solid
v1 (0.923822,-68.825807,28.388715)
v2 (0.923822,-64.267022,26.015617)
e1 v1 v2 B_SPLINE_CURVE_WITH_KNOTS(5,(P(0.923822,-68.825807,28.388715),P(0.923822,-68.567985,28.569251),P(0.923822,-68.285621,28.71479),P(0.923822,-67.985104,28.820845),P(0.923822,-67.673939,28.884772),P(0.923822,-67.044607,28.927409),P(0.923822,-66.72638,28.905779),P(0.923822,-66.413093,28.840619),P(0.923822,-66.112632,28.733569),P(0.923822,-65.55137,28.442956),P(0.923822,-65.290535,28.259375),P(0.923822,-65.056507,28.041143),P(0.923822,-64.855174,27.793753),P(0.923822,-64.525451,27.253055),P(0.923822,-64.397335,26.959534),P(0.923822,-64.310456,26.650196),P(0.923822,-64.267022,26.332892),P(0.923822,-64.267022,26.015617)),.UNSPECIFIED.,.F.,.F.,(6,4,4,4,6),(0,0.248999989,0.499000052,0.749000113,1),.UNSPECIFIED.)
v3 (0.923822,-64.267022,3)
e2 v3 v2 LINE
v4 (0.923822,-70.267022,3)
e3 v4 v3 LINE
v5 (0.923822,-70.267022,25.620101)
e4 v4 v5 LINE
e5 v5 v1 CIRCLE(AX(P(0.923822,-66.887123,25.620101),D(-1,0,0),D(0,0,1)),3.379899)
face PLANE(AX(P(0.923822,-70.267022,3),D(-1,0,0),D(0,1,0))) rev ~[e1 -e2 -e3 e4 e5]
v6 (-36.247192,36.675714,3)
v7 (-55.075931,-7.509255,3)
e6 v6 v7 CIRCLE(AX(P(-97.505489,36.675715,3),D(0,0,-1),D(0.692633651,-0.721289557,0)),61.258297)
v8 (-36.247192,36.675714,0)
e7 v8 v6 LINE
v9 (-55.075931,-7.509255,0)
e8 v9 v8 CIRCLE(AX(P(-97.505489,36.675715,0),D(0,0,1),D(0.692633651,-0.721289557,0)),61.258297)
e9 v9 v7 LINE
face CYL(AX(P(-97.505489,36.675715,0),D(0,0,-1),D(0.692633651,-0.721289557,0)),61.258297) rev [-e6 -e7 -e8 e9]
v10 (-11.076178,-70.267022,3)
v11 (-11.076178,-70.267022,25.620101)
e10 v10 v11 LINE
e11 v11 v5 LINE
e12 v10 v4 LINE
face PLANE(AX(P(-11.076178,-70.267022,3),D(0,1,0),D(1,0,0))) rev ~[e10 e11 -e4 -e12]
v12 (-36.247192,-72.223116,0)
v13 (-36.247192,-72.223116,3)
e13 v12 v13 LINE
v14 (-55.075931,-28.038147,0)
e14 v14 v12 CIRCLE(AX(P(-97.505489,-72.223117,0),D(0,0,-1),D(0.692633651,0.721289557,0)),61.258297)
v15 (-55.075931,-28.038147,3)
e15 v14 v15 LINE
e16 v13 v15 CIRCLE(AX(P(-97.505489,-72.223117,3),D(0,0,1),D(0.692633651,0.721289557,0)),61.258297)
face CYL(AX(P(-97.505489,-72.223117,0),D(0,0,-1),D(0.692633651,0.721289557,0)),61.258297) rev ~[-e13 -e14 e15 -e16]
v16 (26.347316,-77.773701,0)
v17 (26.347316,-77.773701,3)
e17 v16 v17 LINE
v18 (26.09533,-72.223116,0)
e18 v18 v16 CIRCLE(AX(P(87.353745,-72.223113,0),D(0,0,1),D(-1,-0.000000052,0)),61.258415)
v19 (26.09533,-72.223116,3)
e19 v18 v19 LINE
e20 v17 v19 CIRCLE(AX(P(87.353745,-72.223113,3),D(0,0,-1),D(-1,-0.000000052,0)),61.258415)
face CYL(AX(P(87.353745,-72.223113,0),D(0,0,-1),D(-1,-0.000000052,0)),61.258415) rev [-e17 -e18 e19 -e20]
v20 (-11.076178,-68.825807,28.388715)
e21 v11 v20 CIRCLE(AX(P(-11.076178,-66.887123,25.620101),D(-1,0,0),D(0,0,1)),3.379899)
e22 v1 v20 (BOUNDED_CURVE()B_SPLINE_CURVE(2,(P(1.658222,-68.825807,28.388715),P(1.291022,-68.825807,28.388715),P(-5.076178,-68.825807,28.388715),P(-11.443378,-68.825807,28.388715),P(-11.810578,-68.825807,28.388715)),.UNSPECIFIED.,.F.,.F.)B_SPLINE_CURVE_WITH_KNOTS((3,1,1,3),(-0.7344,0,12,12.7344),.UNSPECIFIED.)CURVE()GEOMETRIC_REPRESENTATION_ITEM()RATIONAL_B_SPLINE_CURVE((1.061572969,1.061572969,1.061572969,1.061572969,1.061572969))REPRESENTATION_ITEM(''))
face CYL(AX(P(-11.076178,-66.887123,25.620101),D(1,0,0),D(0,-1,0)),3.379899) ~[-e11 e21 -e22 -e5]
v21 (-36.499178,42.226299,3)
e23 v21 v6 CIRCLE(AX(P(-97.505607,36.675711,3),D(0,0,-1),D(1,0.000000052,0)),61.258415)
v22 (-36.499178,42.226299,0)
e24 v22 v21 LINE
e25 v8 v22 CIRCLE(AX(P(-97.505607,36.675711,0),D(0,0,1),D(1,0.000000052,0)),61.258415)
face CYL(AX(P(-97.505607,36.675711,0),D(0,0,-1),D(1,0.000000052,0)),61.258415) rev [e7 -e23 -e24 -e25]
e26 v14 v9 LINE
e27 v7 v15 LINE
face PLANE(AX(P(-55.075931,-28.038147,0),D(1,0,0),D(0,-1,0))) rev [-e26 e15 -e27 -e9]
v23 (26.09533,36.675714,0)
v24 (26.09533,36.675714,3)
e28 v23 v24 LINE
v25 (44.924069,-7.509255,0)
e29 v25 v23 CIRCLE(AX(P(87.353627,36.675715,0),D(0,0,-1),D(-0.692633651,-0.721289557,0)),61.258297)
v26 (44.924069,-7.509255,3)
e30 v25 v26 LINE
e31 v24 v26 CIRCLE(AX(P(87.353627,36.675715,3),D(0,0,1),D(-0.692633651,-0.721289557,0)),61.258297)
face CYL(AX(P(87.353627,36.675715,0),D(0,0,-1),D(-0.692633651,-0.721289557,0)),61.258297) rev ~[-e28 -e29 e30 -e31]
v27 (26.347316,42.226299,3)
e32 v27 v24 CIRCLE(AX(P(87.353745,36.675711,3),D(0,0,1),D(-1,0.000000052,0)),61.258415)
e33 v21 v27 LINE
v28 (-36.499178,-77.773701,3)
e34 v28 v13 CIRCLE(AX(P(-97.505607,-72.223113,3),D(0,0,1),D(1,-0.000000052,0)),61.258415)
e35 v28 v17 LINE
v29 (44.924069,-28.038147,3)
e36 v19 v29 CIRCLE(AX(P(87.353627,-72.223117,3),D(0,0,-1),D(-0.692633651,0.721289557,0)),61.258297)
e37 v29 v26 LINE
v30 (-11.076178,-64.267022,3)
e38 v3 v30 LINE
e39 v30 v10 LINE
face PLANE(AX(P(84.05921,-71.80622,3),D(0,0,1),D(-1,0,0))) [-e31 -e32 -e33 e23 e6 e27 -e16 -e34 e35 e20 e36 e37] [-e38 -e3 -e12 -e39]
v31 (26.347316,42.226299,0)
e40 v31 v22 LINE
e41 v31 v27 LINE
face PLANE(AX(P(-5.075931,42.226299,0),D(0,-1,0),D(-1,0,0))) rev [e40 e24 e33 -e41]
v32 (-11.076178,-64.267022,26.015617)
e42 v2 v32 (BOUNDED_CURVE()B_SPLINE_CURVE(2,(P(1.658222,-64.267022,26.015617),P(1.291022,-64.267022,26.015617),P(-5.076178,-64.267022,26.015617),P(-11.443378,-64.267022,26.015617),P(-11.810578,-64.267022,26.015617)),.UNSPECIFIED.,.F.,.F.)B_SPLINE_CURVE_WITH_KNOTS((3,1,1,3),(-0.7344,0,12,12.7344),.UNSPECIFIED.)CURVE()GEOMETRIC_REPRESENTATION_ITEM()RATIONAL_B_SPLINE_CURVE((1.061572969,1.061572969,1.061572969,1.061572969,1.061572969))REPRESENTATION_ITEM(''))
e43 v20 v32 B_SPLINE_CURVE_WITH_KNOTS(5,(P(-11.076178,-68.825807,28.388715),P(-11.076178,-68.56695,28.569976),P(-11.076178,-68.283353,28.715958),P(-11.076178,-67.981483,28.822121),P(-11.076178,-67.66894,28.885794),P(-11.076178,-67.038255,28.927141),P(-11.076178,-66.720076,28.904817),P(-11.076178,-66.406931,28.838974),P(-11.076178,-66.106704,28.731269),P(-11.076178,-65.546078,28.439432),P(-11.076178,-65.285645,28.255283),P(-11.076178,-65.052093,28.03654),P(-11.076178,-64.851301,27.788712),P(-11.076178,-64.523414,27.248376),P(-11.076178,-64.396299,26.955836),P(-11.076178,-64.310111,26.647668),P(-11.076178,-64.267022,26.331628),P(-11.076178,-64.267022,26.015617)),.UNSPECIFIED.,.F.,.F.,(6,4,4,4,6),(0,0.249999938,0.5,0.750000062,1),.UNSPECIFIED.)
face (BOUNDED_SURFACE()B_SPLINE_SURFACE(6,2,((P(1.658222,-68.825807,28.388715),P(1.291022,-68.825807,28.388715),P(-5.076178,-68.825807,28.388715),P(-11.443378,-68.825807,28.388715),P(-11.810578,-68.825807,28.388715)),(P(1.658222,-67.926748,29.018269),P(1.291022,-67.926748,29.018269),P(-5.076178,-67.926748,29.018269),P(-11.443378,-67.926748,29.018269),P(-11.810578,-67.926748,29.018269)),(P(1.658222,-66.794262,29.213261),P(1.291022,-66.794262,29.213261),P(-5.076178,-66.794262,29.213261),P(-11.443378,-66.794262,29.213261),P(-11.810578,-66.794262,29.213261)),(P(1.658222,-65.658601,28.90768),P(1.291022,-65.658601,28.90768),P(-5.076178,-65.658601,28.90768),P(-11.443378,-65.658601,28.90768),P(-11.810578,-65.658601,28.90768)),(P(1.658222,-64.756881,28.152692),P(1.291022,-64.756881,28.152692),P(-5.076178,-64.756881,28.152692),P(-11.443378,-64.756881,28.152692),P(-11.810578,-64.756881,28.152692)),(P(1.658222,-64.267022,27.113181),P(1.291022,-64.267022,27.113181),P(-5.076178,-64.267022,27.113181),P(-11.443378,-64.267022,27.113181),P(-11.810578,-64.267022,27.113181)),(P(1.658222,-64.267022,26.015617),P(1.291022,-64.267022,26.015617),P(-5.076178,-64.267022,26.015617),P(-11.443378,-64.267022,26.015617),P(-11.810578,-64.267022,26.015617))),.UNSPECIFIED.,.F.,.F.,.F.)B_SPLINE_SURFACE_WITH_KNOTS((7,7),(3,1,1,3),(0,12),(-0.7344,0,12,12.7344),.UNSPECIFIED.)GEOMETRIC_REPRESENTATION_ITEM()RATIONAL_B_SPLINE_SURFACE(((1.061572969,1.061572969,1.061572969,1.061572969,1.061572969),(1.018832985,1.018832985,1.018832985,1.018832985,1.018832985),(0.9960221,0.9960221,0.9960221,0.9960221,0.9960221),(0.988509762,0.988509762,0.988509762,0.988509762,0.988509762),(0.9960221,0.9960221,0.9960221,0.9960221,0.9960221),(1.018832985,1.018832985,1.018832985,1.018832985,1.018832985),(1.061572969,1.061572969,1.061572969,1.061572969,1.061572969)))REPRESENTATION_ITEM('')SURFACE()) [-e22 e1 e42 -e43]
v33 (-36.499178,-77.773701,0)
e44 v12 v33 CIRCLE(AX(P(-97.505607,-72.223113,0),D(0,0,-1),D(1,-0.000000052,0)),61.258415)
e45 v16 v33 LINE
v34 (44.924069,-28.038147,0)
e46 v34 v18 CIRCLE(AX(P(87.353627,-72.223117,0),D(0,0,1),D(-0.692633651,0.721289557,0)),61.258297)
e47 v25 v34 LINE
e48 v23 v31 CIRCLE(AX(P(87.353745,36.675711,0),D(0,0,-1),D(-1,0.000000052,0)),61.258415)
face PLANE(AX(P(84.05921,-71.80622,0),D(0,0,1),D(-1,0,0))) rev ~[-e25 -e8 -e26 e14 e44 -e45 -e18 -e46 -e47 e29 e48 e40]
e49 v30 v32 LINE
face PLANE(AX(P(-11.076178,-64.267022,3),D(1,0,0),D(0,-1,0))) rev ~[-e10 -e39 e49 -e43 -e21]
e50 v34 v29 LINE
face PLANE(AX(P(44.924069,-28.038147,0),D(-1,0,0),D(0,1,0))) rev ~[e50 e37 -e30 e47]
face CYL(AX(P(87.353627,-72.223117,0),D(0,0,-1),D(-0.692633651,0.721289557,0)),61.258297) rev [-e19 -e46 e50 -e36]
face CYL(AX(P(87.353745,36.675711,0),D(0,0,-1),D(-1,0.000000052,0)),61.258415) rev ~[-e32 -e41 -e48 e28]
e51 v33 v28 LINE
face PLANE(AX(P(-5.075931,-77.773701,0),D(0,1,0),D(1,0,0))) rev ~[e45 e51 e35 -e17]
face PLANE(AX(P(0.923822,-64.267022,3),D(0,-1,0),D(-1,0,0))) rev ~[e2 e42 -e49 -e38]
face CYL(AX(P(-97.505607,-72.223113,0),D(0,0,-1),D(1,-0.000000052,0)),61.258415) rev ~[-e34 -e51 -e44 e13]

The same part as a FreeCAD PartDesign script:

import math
import FreeCAD as App
import Part
import Sketcher

V = App.Vector
Q = App.Units.Quantity


def edges_at(feature, points):
    """Names of the edges that pass closest to the given points."""
    edges = feature.Shape.Edges
    near = lambda p: min(range(len(edges)), key=lambda i: edges[i].distToShape(Part.Vertex(*p))[0])
    return sorted({f"Edge{near(p) + 1}" for p in points})


def add_polygon(sketch, points):
    """Adds a closed chain of lines whose ends are joined by coincident constraints."""
    first, n = sketch.GeometryCount, len(points)
    for a, b in zip(points, points[1:] + points[:1]):
        sketch.addGeometry(Part.LineSegment(App.Vector(*a, 0), App.Vector(*b, 0)), False)
    for i in range(n):
        sketch.addConstraint(Sketcher.Constraint("Coincident", first + i, 2, first + (i + 1) % n, 1))

doc = App.newDocument("Part")
params = doc.addObject("Spreadsheet::Sheet", "Params")
for row, (alias, value) in enumerate([
    ("sketch1_width", "50 mm"),
    ("sketch1_height", "60 mm"),
    ("pad1_length", "3 mm"),
    ("pocket1_length", "57 mm"),
    ("sketch3_width", "12 mm"),
    ("sketch3_height", "6 mm"),
    ("pad2_length", "26 mm"),
    ("fillet_radius", "3.379899 mm"),
    ("fillet2_radius", "2.897056 mm"),
], start=1):
    params.set(f"A{row}", alias)
    params.set(f"B{row}", "=" + value)
    params.setAlias(f"B{row}", alias)

body = doc.addObject("PartDesign::Body", "Body")

sketch1 = body.newObject("Sketcher::SketchObject", "Sketch")
sketch1.AttachmentSupport = (doc.getObject("XY_Plane"), [""])
sketch1.MapMode = "FlatFace"
sketch1.addGeometry([
    Part.ArcOfCircle(Part.Circle(V(-98, 37, 0), V(0, 0, 1), 61), math.radians(5), math.radians(314)),
    Part.LineSegment(V(-55, -8, 0), V(-55, -18, 0)),
    Part.LineSegment(V(-55, -18, 0), V(-5, -18, 0)),
    Part.LineSegment(V(-5, -18, 0), V(-5, 42, 0)),
    Part.LineSegment(V(-5, 42, 0), V(-36, 42, 0)),
], False)
sketch1.addConstraint([
    Sketcher.Constraint("Coincident", 0, 2, 1, 1),
    Sketcher.Constraint("Coincident", 1, 2, 2, 1),
    Sketcher.Constraint("Coincident", 2, 2, 3, 1),
    Sketcher.Constraint("Coincident", 3, 2, 4, 1),
    Sketcher.Constraint("Coincident", 4, 2, 0, 1),
    Sketcher.Constraint("Vertical", 1),
    Sketcher.Constraint("Horizontal", 2),
    Sketcher.Constraint("Vertical", 3),
    Sketcher.Constraint("Horizontal", 4),
    Sketcher.Constraint("DistanceX", 2, 1, 2, 2, Q("50 mm")),
    Sketcher.Constraint("DistanceY", 3, 1, 3, 2, Q("60 mm")),
    Sketcher.Constraint("Radius", 0, Q("61.258296 mm")),
    Sketcher.Constraint("DistanceY", 1, 2, -1, 1, Q("17.773701 mm")),
    Sketcher.Constraint("DistanceX", 4, 2, 4, 1, Q("31.423247 mm")),
    Sketcher.Constraint("DistanceY", 1, 2, 1, 1, Q("10.264446 mm")),
    Sketcher.Constraint("DistanceX", 0, 2, -1, 1, Q("55.075931 mm")),
])
sketch1.setExpression("Constraints[9]", "Params.sketch1_width")
sketch1.setExpression("Constraints[10]", "Params.sketch1_height")
pad1 = body.newObject("PartDesign::Pad", "Pad")
pad1.Profile = sketch1
pad1.setExpression("Length", "Params.pad1_length")

sketch2 = body.newObject("Sketcher::SketchObject", "Sketch001")
sketch2.AttachmentSupport = (doc.getObject("XY_Plane"), [""])
sketch2.MapMode = "FlatFace"
sketch2.addGeometry([
    Part.ArcOfCircle(Part.Circle(V(-97.505489, 36.675715, 0), V(0, 0, 1), 61.258297), math.radians(-46.161052), math.radians(-0.000001)),
    Part.ArcOfCircle(Part.Circle(V(-97.505607, 36.675711, 0), V(0, 0, 1), 61.258415), math.radians(0.000003), math.radians(5.198666)),
    Part.ArcOfCircle(Part.Circle(V(-97.505488, 36.675714, 0), V(0, 0, 1), 61.258296), math.radians(5.198673), math.radians(313.838948)),
], False)
sketch2.addConstraint([
    Sketcher.Constraint("Coincident", 0, 2, 1, 1),
    Sketcher.Constraint("Coincident", 1, 2, 2, 1),
    Sketcher.Constraint("Coincident", 2, 2, 0, 1),
    Sketcher.Constraint("Coincident", 2, 3, 0, 3),
    Sketcher.Constraint("Radius", 0, Q("61.258297 mm")),
    Sketcher.Constraint("Radius", 1, Q("61.258415 mm")),
    Sketcher.Constraint("DistanceY", -1, 1, 1, 2, Q("42.226299 mm")),
    Sketcher.Constraint("DistanceX", 0, 3, -1, 1, Q("97.505489 mm")),
    Sketcher.Constraint("DistanceY", -1, 1, 1, 3, Q("36.675711 mm")),
    Sketcher.Constraint("DistanceX", 2, 2, -1, 1, Q("55.075931 mm")),
    Sketcher.Constraint("DistanceY", 2, 2, 0, 2, Q("44.184969 mm")),
])
pocket1 = body.newObject("PartDesign::Pocket", "Pocket")
pocket1.Profile = sketch2
pocket1.setExpression("Length", "Params.pocket1_length")
pocket1.Reversed = True
body2 = doc.addObject("PartDesign::Body", "Body001")
doc.recompute()

body2.BaseFeature = body
doc.recompute()

mirroring = doc.addObject("Part::Mirroring", "Mirroring")
mirroring.Source = body
mirroring.Base = V(-5.075931, 12.226299, 1.5)
mirroring.Normal = V(1, 0, 0)
body3 = doc.addObject("PartDesign::Body", "Body002")
body3.BaseFeature = mirroring
boolean = body2.newObject("PartDesign::Boolean", "Boolean")
boolean.Type = "Fuse"
boolean.addObjects([body3])
doc.recompute()
body4 = doc.addObject("PartDesign::Body", "Body003")
doc.recompute()

body4.BaseFeature = body2
doc.recompute()

mirroring2 = doc.addObject("Part::Mirroring", "Mirroring001")
mirroring2.Source = body2
mirroring2.Base = V(-5.075931, -17.773701, 1.5)
mirroring2.Normal = V(0, -1, 0)
body5 = doc.addObject("PartDesign::Body", "Body004")
body5.BaseFeature = mirroring2
boolean2 = body4.newObject("PartDesign::Boolean", "Boolean001")
boolean2.Type = "Fuse"
boolean2.addObjects([body5])
doc.recompute()

sketch3 = body4.newObject("Sketcher::SketchObject", "Sketch002")
sketch3.AttachmentSupport = (doc.getObject("XY_Plane003"), [""])
sketch3.MapMode = "FlatFace"
sketch3.AttachmentOffset = App.Placement(V(0, 0, 3), App.Rotation())
add_polygon(sketch3, [(-11, -70), (1, -70), (1, -64), (-11, -64)])
sketch3.addConstraint([
    Sketcher.Constraint("Horizontal", 0),
    Sketcher.Constraint("Vertical", 1),
    Sketcher.Constraint("Horizontal", 2),
    Sketcher.Constraint("Vertical", 3),
    Sketcher.Constraint("DistanceX", 0, 1, 0, 2, Q("12 mm")),
    Sketcher.Constraint("DistanceY", 1, 1, 1, 2, Q("6 mm")),
    Sketcher.Constraint("DistanceY", 0, 2, -1, 1, Q("70.267022 mm")),
    Sketcher.Constraint("DistanceX", -1, 1, 0, 2, Q("0.923822 mm")),
])
sketch3.setExpression("Constraints[8]", "Params.sketch3_width")
sketch3.setExpression("Constraints[9]", "Params.sketch3_height")
pad2 = body4.newObject("PartDesign::Pad", "Pad001")
pad2.Profile = sketch3
pad2.setExpression("Length", "Params.pad2_length")
doc.recompute()

fillet = body4.newObject("PartDesign::Fillet", "Fillet")
fillet.Base = (pad2, edges_at(pad2, [(-5.076, -70.267, 29)]))
fillet.setExpression("Radius", "Params.fillet_radius")
doc.recompute()

fillet2 = body4.newObject("PartDesign::Fillet", "Fillet001")
fillet2.Base = (fillet, edges_at(fillet, [(-5.076, -64.267, 29)]))
fillet2.setExpression("Radius", "Params.fillet2_radius")
mirroring.Visibility = False
mirroring2.Visibility = False

doc.recompute()
